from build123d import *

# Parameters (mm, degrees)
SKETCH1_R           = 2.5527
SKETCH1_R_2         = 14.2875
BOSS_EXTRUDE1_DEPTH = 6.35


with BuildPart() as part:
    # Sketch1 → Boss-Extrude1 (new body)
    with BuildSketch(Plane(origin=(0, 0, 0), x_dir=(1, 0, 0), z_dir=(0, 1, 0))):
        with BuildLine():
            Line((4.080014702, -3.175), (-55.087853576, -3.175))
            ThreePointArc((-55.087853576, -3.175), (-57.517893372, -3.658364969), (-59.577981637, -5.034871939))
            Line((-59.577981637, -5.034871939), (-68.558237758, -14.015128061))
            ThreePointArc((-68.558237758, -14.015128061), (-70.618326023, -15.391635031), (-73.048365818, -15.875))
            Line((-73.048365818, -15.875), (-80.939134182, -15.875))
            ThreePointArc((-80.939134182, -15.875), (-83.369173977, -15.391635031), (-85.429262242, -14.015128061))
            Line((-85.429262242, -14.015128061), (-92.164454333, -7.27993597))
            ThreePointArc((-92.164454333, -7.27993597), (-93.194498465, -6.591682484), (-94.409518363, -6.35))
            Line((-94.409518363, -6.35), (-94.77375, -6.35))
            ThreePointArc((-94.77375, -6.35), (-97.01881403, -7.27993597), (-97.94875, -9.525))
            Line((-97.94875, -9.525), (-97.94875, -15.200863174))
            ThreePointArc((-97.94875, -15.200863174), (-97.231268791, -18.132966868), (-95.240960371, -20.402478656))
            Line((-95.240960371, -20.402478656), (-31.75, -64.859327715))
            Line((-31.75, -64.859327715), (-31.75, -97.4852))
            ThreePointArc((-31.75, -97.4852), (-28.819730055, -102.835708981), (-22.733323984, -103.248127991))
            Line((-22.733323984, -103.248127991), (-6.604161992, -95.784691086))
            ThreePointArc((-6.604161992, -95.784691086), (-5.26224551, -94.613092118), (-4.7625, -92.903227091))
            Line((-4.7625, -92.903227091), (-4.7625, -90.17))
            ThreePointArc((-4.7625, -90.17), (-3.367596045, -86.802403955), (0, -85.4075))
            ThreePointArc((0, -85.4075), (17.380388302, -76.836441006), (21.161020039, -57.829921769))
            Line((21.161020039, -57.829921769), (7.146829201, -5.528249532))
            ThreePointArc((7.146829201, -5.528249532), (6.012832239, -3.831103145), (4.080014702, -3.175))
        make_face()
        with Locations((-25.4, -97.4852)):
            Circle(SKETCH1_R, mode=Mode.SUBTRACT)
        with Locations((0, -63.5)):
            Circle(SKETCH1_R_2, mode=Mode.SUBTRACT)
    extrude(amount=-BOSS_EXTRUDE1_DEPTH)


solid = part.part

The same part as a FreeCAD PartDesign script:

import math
import FreeCAD as App
import Part
import Sketcher
from FreeCAD import Vector
Q = App.Units.Quantity

doc = App.newDocument("Part")
body = doc.addObject("PartDesign::Body", "Body")

# Sketch on XZ plane
sketch1 = doc.addObject("Sketcher::SketchObject", "Sketch")
body.addObject(sketch1)
sketch1.AttachmentSupport = (doc.XZ_Plane, [""])
sketch1.MapMode = "FlatFace"
sketch1.addGeometry([
    Part.LineSegment(Vector(4.08, 3.17, 0), Vector(-55.09, 3.17, 0)),  # 0
    Part.ArcOfCircle(Part.Circle(Vector(-55.09, 9.53, 0), Vector(0, 0, 1), 6.35), math.radians(-135), math.radians(-90)),  # 1
    Part.LineSegment(Vector(-59.58, 5.03, 0), Vector(-68.56, 14.02, 0)),  # 2
    Part.ArcOfCircle(Part.Circle(Vector(-73.05, 9.52, 0), Vector(0, 0, 1), 6.35), math.radians(45), math.radians(90)),  # 3
    Part.LineSegment(Vector(-73.05, 15.88, 0), Vector(-80.94, 15.88, 0)),  # 4
    Part.ArcOfCircle(Part.Circle(Vector(-80.94, 9.52, 0), Vector(0, 0, 1), 6.35), math.radians(90), math.radians(135)),  # 5
    Part.LineSegment(Vector(-85.43, 14.02, 0), Vector(-92.16, 7.28, 0)),  # 6
    Part.ArcOfCircle(Part.Circle(Vector(-94.41, 9.52, 0), Vector(0, 0, 1), 3.17), math.radians(-90), math.radians(-45)),  # 7
    Part.LineSegment(Vector(-94.41, 6.35, 0), Vector(-94.77, 6.35, 0)),  # 8
    Part.ArcOfCircle(Part.Circle(Vector(-94.77, 9.53, 0), Vector(0, 0, 1), 3.18), math.radians(-180), math.radians(-90)),  # 9
    Part.LineSegment(Vector(-97.95, 9.53, 0), Vector(-97.95, 15.2, 0)),  # 10
    Part.ArcOfCircle(Part.Circle(Vector(-91.6, 15.2, 0), Vector(0, 0, 1), 6.35), math.radians(125), math.radians(180)),  # 11
    Part.LineSegment(Vector(-95.24, 20.4, 0), Vector(-31.75, 64.86, 0)),  # 12
    Part.LineSegment(Vector(-31.75, 64.86, 0), Vector(-31.75, 97.49, 0)),  # 13
    Part.ArcOfCircle(Part.Circle(Vector(-25.4, 97.49, 0), Vector(0, 0, 1), 6.35), math.radians(65), math.radians(180)),  # 14
    Part.LineSegment(Vector(-22.73, 103.25, 0), Vector(-6.6, 95.78, 0)),  # 15
    Part.ArcOfCircle(Part.Circle(Vector(-7.94, 92.9, 0), Vector(0, 0, 1), 3.18), math.radians(0), math.radians(65)),  # 16
    Part.LineSegment(Vector(-4.76, 92.9, 0), Vector(-4.76, 90.17, 0)),  # 17
    Part.ArcOfCircle(Part.Circle(Vector(0, 90.17, 0), Vector(0, 0, 1), 4.76), math.radians(-180), math.radians(-90)),  # 18
    Part.ArcOfCircle(Part.Circle(Vector(0, 63.5, 0), Vector(0, 0, 1), 21.91), math.radians(-15), math.radians(90)),  # 19
    Part.LineSegment(Vector(21.16, 57.83, 0), Vector(7.15, 5.53, 0)),  # 20
    Part.ArcOfCircle(Part.Circle(Vector(4.08, 6.35, 0), Vector(0, 0, 1), 3.18), math.radians(-90), math.radians(-15)),  # 21
    Part.Circle(Vector(-25.4, 97.49, 0), Vector(0, 0, 1), 2.55),  # 22
    Part.Circle(Vector(0, 63.5, 0), Vector(0, 0, 1), 14.29),  # 23
], False)
sketch1.addConstraint([
    Sketcher.Constraint("Tangent", 0, 2, 1, 2),
    Sketcher.Constraint("Tangent", 1, 1, 2, 1),
    Sketcher.Constraint("Tangent", 2, 2, 3, 1),
    Sketcher.Constraint("Tangent", 3, 2, 4, 1),
    Sketcher.Constraint("Tangent", 4, 2, 5, 1),
    Sketcher.Constraint("Tangent", 5, 2, 6, 1),
    Sketcher.Constraint("Tangent", 6, 2, 7, 2),
    Sketcher.Constraint("Tangent", 7, 1, 8, 1),
    Sketcher.Constraint("Tangent", 8, 2, 9, 2),
    Sketcher.Constraint("Tangent", 9, 1, 10, 1),
    Sketcher.Constraint("Tangent", 10, 2, 11, 2),
    Sketcher.Constraint("Tangent", 11, 1, 12, 1),
    Sketcher.Constraint("Coincident", 12, 2, 13, 1),
    Sketcher.Constraint("Tangent", 13, 2, 14, 2),
    Sketcher.Constraint("Tangent", 14, 1, 15, 1),
    Sketcher.Constraint("Tangent", 15, 2, 16, 2),
    Sketcher.Constraint("Tangent", 16, 1, 17, 1),
    Sketcher.Constraint("Tangent", 17, 2, 18, 1),
    Sketcher.Constraint("Tangent", 18, 2, 19, 2),
    Sketcher.Constraint("Tangent", 19, 1, 20, 1),
    Sketcher.Constraint("Tangent", 20, 2, 21, 2),
    Sketcher.Constraint("Tangent", 21, 1, 0, 1),
    Sketcher.Constraint("Horizontal", 0),
    Sketcher.Constraint("Horizontal", 4),
    Sketcher.Constraint("Horizontal", 8),
    Sketcher.Constraint("Vertical", 10),
    Sketcher.Constraint("Vertical", 13),
    Sketcher.Constraint("Vertical", 17),
    Sketcher.Constraint("Coincident", 22, 3, 14, 3),
    Sketcher.Constraint("Coincident", 23, 3, 19, 3),
    Sketcher.Constraint("Equal", 1, 3),
    Sketcher.Constraint("Equal", 3, 5),
    Sketcher.Constraint("Equal", 7, 9),
    Sketcher.Constraint("Equal", 5, 11),
    Sketcher.Constraint("Equal", 11, 14),
    Sketcher.Constraint("Equal", 9, 16),
    Sketcher.Constraint("Equal", 16, 21),
    Sketcher.Constraint("PointOnObject", 18, 3, -2),
    Sketcher.Constraint("PointOnObject", 19, 3, -2),
    Sketcher.Constraint("Perpendicular", 2, 6),
    Sketcher.Constraint("Horizontal", 1, 3, 3, 3),
    Sketcher.Constraint("Horizontal", 5, 3, 7, 3),
    Sketcher.Constraint("Horizontal", 2, 2, 5, 2),
    Sketcher.Constraint("Horizontal", 21, 3, 7, 1),
    Sketcher.Constraint("Radius", 1, Q("0.25 in")),
    Sketcher.Constraint("Diameter", 22, Q("0.201 in")),
    Sketcher.Constraint("Diameter", 23, Q("1.125 in")),
    Sketcher.Constraint("DistanceX", 14, 3, -1, 1, Q("1 in")),
    Sketcher.Constraint("Angle", 12, Q("35 deg")),
    Sketcher.Constraint("Angle", 20, Q("-105 deg")),
    Sketcher.Constraint("Radius", 18, Q("0.1875 in")),
    Sketcher.Constraint("DistanceY", -1, 1, 19, 3, Q("2.5 in")),
    Sketcher.Constraint("Radius", 19, Q("0.8625 in")),
    Sketcher.Constraint("DistanceY", 21, 3, 18, 3, Q("3.3 in")),
    Sketcher.Constraint("DistanceY", -1, 1, 14, 3, Q("3.838 in")),
    Sketcher.Constraint("DistanceX", 0, 2, 0, 1, Q("59.167868 mm")),
    Sketcher.Constraint("DistanceX", 4, 2, 4, 1, Q("7.890768 mm")),
    Sketcher.Constraint("DistanceX", 8, 2, 8, 1, Q("0.364232 mm")),
    Sketcher.Constraint("DistanceY", 12, 2, 16, 3, Q("28.043899 mm")),
    Sketcher.Constraint("DistanceY", 16, 3, 14, 1, Q("10.344901 mm")),
])
pad1 = doc.addObject("PartDesign::Pad", "Pad")
body.addObject(pad1)
pad1.Profile = sketch1
pad1.Length = Q("0.25 in")

doc.recompute()
